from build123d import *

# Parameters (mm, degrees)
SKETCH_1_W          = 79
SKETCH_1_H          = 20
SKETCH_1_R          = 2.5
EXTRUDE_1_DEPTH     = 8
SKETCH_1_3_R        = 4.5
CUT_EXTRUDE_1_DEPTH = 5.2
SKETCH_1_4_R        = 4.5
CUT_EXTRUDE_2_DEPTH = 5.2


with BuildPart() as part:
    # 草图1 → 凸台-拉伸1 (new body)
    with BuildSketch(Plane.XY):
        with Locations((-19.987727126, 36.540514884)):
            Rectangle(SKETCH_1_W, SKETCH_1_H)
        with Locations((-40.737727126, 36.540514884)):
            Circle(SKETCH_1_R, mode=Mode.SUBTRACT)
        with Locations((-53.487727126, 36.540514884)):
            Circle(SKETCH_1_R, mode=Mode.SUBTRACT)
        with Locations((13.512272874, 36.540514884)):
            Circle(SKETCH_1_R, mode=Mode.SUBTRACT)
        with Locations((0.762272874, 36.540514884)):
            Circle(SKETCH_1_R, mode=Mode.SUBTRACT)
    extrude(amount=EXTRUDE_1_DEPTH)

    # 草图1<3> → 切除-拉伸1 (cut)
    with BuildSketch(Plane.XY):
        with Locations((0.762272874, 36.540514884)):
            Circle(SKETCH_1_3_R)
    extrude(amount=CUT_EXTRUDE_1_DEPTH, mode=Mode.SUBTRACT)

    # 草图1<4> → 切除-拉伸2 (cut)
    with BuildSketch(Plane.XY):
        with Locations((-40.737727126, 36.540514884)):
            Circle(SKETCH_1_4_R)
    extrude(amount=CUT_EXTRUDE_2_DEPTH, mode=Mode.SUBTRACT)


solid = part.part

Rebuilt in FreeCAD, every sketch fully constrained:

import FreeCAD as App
import Part
import Sketcher
from FreeCAD import Vector

doc = App.newDocument("Part")
body = doc.addObject("PartDesign::Body", "Body")

# Sketch on XY plane
sketch1 = body.newObject("Sketcher::SketchObject", "Sketch")
sketch1.AttachmentSupport = (doc.getObject("XY_Plane"), [""])
sketch1.MapMode = "FlatFace"
sketch1.addGeometry([
    Part.LineSegment(Vector(-59.487727, 46.540515, 0), Vector(-59.487727, 26.540515, 0)),  # 0
    Part.LineSegment(Vector(-59.487727, 26.540515, 0), Vector(19.512273, 26.540515, 0)),  # 1
    Part.LineSegment(Vector(19.512273, 26.540515, 0), Vector(19.512273, 46.540515, 0)),  # 2
    Part.LineSegment(Vector(19.512273, 46.540515, 0), Vector(-59.487727, 46.540515, 0)),  # 3
    Part.Circle(Vector(-53.487727, 36.540515, 0), Vector(0, 0, 1), 2.5),  # 4
    Part.Circle(Vector(-40.737727, 36.540515, 0), Vector(0, 0, 1), 2.5),  # 5
    Part.Circle(Vector(0.762273, 36.540515, 0), Vector(0, 0, 1), 2.5),  # 6
    Part.Circle(Vector(13.512273, 36.540515, 0), Vector(0, 0, 1), 2.5),  # 7
], False)
sketch1.addConstraint([
    Sketcher.Constraint("Coincident", 0, 2, 1, 1),
    Sketcher.Constraint("Coincident", 1, 2, 2, 1),
    Sketcher.Constraint("Coincident", 2, 2, 3, 1),
    Sketcher.Constraint("Coincident", 3, 2, 0, 1),
    Sketcher.Constraint("Vertical", 0),
    Sketcher.Constraint("Horizontal", 1),
    Sketcher.Constraint("Vertical", 2),
    Sketcher.Constraint("Horizontal", 3),
    Sketcher.Constraint("Equal", 4, 5),
    Sketcher.Constraint("Equal", 5, 6),
    Sketcher.Constraint("Equal", 6, 7),
    Sketcher.Constraint("Horizontal", 4, 3, 5, 3),
    Sketcher.Constraint("Horizontal", 5, 3, 6, 3),
    Sketcher.Constraint("Horizontal", 6, 3, 7, 3),
    Sketcher.Constraint("Diameter", 4, 5.0),
    Sketcher.Constraint("DistanceX", 1, 1, 1, 2, 79.0),
    Sketcher.Constraint("DistanceY", 0, 2, 0, 1, 20.0),
    Sketcher.Constraint("DistanceX", 4, 3, 7, 3, 67.0),
    Sketcher.Constraint("DistanceX", 0, 2, 4, 3, 6.0),
    Sketcher.Constraint("DistanceY", 0, 2, 4, 3, 10.0),
    Sketcher.Constraint("DistanceX", 5, 3, 6, 3, 41.5),
    Sketcher.Constraint("DistanceX", 4, 3, 5, 3, 12.75),
    Sketcher.Constraint("DistanceX", 4, 3, -1, 1, 53.487727),
    Sketcher.Constraint("DistanceY", -1, 1, 4, 3, 36.540515),
])
pad1 = body.newObject("PartDesign::Pad", "Pad")
pad1.Profile = sketch1
pad1.Length = 8

# Sketch on XY plane
sketch2 = body.newObject("Sketcher::SketchObject", "Sketch001")
sketch2.AttachmentSupport = (doc.getObject("XY_Plane"), [""])
sketch2.MapMode = "FlatFace"
sketch2.addGeometry(Part.Circle(Vector(0.762273, 36.540515, 0), Vector(0, 0, 1), 4.5), False)
sketch2.addConstraint([
    Sketcher.Constraint("Diameter", 0, 9.0),
    Sketcher.Constraint("DistanceX", -1, 1, 0, 3, 0.762273),
    Sketcher.Constraint("DistanceY", -1, 1, 0, 3, 36.540515),
])
pocket1 = body.newObject("PartDesign::Pocket", "Pocket")
pocket1.Profile = sketch2
pocket1.Length = 5.2
pocket1.Reversed = True

# Sketch on XY plane
sketch3 = body.newObject("Sketcher::SketchObject", "Sketch002")
sketch3.AttachmentSupport = (doc.getObject("XY_Plane"), [""])
sketch3.MapMode = "FlatFace"
sketch3.addGeometry(Part.Circle(Vector(-40.737727, 36.540515, 0), Vector(0, 0, 1), 4.5), False)
sketch3.addConstraint([
    Sketcher.Constraint("Diameter", 0, 9.0),
    Sketcher.Constraint("DistanceX", 0, 3, -1, 1, 40.737727),
    Sketcher.Constraint("DistanceY", -1, 1, 0, 3, 36.540515),
])
pocket2 = body.newObject("PartDesign::Pocket", "Pocket001")
pocket2.Profile = sketch3
pocket2.Length = 5.2
pocket2.Reversed = True

doc.recompute()
